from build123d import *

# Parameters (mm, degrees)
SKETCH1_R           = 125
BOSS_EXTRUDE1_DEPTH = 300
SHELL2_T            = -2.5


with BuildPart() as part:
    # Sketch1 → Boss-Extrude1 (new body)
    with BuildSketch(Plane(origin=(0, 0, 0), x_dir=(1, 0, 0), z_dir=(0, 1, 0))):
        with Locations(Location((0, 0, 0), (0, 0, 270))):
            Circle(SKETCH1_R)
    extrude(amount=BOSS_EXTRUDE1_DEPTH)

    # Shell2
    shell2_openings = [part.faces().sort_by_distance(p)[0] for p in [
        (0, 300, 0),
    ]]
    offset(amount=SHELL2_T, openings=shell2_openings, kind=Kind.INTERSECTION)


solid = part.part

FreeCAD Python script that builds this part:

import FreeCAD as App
import Part
import Sketcher

V = App.Vector
Q = App.Units.Quantity


def faces_at(feature, points):
    """Names of the faces that lie closest to the given points."""
    faces = feature.Shape.Faces
    near = lambda p: min(range(len(faces)), key=lambda i: faces[i].distToShape(Part.Vertex(*p))[0])
    return sorted({f"Face{near(p) + 1}" for p in points})

doc = App.newDocument("Part")
body = doc.addObject("PartDesign::Body", "Body")

# Sketch on XZ plane
sketch1 = body.newObject("Sketcher::SketchObject", "Sketch")
sketch1.AttachmentSupport = (doc.getObject("XZ_Plane"), [""])
sketch1.MapMode = "FlatFace"
sketch1.addGeometry(Part.Circle(V(0, 0, 0), V(0, 0, 1), 125), False)
sketch1.addConstraint([
    Sketcher.Constraint("Coincident", 0, 3, -1, 1),
    Sketcher.Constraint("Diameter", 0, Q("250 mm")),
])
pad1 = body.newObject("PartDesign::Pad", "Pad")
pad1.Profile = sketch1
pad1.Length = 300
pad1.Reversed = True
doc.recompute()

thickness = body.newObject("PartDesign::Thickness", "Thickness")
thickness.Base = (pad1, faces_at(pad1, [(0, 300, 0)]))
thickness.Value = 2.5
thickness.Reversed = True
thickness.Join = "Intersection"

doc.recompute()
